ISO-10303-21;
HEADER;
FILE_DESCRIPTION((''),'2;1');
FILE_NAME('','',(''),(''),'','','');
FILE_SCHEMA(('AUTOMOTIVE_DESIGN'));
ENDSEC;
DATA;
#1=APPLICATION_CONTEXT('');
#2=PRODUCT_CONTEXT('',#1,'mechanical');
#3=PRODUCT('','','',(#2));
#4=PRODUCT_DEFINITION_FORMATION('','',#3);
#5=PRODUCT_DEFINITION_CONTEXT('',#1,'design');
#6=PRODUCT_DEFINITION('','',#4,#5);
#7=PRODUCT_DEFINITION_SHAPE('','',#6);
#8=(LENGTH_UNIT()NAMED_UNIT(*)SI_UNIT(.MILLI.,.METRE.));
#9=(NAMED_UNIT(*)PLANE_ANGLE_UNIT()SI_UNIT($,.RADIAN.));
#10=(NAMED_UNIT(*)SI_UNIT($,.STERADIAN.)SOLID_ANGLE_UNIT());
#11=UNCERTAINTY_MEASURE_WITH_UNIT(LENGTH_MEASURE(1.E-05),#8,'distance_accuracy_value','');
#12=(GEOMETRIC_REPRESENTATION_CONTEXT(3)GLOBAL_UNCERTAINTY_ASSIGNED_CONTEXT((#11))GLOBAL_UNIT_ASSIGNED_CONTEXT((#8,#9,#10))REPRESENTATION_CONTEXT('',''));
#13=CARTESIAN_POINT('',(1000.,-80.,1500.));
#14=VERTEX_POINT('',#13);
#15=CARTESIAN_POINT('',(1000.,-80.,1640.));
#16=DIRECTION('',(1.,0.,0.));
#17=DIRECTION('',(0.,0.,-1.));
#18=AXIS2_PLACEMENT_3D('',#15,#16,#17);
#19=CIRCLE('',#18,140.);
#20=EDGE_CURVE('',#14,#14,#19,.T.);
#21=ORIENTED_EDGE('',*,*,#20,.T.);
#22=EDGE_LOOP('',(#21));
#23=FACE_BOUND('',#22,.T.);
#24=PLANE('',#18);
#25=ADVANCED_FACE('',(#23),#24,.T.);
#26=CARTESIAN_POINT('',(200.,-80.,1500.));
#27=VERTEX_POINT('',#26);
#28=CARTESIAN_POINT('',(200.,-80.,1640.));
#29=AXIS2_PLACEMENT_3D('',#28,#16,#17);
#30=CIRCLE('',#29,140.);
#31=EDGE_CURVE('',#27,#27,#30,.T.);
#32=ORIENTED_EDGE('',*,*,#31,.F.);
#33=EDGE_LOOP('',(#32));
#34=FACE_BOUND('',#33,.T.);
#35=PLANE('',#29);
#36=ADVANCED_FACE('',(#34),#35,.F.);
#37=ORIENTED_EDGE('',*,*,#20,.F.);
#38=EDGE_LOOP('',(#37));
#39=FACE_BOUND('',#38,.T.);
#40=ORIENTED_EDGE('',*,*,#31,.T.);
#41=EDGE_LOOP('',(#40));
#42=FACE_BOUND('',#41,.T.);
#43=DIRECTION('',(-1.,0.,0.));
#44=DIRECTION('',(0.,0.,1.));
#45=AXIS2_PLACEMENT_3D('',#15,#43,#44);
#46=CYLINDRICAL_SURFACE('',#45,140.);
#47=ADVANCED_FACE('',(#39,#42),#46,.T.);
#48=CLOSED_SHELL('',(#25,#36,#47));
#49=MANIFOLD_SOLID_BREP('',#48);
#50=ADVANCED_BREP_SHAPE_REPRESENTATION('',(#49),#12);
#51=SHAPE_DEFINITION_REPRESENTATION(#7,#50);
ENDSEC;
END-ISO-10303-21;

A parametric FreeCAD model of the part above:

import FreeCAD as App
import Part
import Sketcher
from FreeCAD import Vector

doc = App.newDocument("Part")
body = doc.addObject("PartDesign::Body", "Body")

# Sketch on YZ plane
sketch1 = body.newObject("Sketcher::SketchObject", "Sketch")
sketch1.AttachmentSupport = (doc.getObject("YZ_Plane"), [""])
sketch1.MapMode = "FlatFace"
sketch1.AttachmentOffset = App.Placement(Vector(0, 0, 200), App.Rotation())
sketch1.addGeometry(Part.Circle(Vector(-80, 1640, 0), Vector(0, 0, 1), 140), False)
sketch1.addConstraint([
    Sketcher.Constraint("Diameter", 0, 280.0),
    Sketcher.Constraint("DistanceX", 0, 3, -1, 1, 80.0),
    Sketcher.Constraint("DistanceY", -1, 1, 0, 3, 1640.0),
])
pad1 = body.newObject("PartDesign::Pad", "Pad")
pad1.Profile = sketch1
pad1.Length = 800

doc.recompute()
